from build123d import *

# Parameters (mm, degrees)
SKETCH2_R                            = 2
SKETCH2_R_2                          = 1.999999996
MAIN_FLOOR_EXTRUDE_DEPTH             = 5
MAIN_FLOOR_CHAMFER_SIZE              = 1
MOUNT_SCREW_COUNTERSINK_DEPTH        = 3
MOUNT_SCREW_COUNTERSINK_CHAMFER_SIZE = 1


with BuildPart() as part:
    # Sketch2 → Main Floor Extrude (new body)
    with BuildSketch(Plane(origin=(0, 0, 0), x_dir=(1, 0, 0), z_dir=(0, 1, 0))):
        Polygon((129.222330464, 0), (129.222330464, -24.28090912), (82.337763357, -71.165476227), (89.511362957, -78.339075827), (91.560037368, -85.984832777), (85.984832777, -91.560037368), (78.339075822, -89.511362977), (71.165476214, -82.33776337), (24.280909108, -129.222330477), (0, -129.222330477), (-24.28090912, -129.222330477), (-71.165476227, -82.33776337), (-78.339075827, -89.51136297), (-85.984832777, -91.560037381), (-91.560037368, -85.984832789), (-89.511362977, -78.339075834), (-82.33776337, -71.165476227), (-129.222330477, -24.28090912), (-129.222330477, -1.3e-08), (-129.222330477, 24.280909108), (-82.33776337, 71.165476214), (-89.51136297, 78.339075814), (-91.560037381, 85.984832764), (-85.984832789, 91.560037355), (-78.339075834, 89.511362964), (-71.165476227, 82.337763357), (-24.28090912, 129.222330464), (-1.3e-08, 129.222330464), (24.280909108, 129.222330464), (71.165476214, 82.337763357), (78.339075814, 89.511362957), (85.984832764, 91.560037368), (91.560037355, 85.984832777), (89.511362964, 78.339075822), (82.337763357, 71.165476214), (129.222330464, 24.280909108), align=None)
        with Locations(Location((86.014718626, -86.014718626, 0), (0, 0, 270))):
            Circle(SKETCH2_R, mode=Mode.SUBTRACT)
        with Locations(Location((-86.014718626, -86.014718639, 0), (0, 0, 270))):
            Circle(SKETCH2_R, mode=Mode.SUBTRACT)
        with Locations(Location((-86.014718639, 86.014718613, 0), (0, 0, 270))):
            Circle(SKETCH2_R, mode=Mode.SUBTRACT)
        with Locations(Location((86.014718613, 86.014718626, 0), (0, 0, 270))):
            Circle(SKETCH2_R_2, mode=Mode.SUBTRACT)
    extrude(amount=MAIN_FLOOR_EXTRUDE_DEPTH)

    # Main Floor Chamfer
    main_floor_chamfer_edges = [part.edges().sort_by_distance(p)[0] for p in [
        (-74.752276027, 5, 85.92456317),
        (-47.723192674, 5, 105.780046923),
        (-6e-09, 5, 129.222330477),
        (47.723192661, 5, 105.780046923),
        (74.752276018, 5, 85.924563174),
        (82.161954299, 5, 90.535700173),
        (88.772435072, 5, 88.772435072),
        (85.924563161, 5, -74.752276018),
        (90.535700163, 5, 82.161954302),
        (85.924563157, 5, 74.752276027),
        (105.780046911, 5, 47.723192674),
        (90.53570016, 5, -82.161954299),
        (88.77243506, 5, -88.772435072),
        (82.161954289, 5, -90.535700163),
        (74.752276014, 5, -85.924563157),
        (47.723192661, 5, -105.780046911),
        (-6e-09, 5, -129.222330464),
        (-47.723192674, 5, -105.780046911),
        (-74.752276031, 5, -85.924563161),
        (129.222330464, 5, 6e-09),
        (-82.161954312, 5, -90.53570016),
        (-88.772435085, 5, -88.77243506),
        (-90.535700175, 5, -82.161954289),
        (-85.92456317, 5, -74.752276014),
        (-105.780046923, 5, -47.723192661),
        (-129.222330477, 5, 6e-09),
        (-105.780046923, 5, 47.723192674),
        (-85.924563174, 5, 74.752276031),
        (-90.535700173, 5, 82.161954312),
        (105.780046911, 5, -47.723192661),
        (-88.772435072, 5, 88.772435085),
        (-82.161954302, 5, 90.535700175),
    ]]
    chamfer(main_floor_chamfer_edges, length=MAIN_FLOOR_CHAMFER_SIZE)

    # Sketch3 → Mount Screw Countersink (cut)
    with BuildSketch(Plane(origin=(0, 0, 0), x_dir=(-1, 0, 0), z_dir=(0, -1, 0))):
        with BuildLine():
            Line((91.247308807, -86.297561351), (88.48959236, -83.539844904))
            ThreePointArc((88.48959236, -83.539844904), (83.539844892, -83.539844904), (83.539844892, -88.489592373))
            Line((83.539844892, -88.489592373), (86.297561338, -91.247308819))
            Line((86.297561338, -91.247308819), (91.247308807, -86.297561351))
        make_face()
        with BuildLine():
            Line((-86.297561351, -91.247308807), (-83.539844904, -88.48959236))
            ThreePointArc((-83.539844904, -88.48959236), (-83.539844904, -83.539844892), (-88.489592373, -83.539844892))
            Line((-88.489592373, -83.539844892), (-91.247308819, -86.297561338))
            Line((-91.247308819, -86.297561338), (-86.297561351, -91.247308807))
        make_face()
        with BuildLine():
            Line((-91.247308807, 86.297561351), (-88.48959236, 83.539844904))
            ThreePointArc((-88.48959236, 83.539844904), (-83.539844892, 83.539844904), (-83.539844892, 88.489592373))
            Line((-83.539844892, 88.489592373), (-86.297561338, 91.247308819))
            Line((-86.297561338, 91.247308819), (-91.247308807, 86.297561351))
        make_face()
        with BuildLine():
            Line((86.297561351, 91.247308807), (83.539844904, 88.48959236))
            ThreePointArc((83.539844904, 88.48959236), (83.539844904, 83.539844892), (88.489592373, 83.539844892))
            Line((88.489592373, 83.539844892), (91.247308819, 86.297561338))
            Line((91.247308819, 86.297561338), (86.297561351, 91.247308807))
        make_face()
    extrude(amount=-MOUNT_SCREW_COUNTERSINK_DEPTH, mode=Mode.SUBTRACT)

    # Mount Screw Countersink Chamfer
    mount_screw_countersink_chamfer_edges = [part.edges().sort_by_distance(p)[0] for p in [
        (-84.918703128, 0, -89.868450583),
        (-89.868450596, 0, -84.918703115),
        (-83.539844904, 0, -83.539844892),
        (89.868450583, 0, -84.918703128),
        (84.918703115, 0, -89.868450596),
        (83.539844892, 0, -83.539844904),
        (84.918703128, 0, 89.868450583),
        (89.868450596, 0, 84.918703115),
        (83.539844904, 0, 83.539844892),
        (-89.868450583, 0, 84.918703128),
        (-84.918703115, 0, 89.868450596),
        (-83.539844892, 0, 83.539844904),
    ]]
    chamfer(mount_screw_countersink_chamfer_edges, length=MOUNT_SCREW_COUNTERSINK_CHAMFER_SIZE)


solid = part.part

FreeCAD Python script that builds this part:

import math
import FreeCAD as App
import Part
import Sketcher

V = App.Vector
Q = App.Units.Quantity


def edges_at(feature, points):
    """Names of the edges that pass closest to the given points."""
    edges = feature.Shape.Edges
    near = lambda p: min(range(len(edges)), key=lambda i: edges[i].distToShape(Part.Vertex(*p))[0])
    return sorted({f"Edge{near(p) + 1}" for p in points})

doc = App.newDocument("Part")
body = doc.addObject("PartDesign::Body", "Body")

sketch1 = doc.addObject("Sketcher::SketchObject", "Sketch")
body.addObject(sketch1)
sketch1.AttachmentSupport = (doc.XZ_Plane, [""])
sketch1.MapMode = "FlatFace"
sketch1.addGeometry([
    Part.LineSegment(V(129.2, 24.3, 0), V(129.2, -24.3, 0)),
    Part.LineSegment(V(129.2, -24.3, 0), V(82.3, -71.2, 0)),
    Part.LineSegment(V(82.3, -71.2, 0), V(89.5, -78.3, 0)),
    Part.LineSegment(V(89.5, -78.3, 0), V(91.6, -86, 0)),
    Part.LineSegment(V(91.6, -86, 0), V(86, -91.6, 0)),
    Part.LineSegment(V(86, -91.6, 0), V(78.3, -89.5, 0)),
    Part.LineSegment(V(78.3, -89.5, 0), V(71.2, -82.3, 0)),
    Part.LineSegment(V(71.2, -82.3, 0), V(24.3, -129.2, 0)),
    Part.LineSegment(V(24.3, -129.2, 0), V(-24.3, -129.2, 0)),
    Part.LineSegment(V(-24.3, -129.2, 0), V(-71.2, -82.3, 0)),
    Part.LineSegment(V(-71.2, -82.3, 0), V(-78.3, -89.5, 0)),
    Part.LineSegment(V(-78.3, -89.5, 0), V(-86, -91.6, 0)),
    Part.LineSegment(V(-86, -91.6, 0), V(-91.6, -86, 0)),
    Part.LineSegment(V(-91.6, -86, 0), V(-89.5, -78.3, 0)),
    Part.LineSegment(V(-89.5, -78.3, 0), V(-82.3, -71.2, 0)),
    Part.LineSegment(V(-82.3, -71.2, 0), V(-129.2, -24.3, 0)),
    Part.LineSegment(V(-129.2, -24.3, 0), V(-129.2, 24.3, 0)),
    Part.LineSegment(V(-129.2, 24.3, 0), V(-82.3, 71.2, 0)),
    Part.LineSegment(V(-82.3, 71.2, 0), V(-89.5, 78.3, 0)),
    Part.LineSegment(V(-89.5, 78.3, 0), V(-91.6, 86, 0)),
    Part.LineSegment(V(-91.6, 86, 0), V(-86, 91.6, 0)),
    Part.LineSegment(V(-86, 91.6, 0), V(-78.3, 89.5, 0)),
    Part.LineSegment(V(-78.3, 89.5, 0), V(-71.2, 82.3, 0)),
    Part.LineSegment(V(-71.2, 82.3, 0), V(-24.3, 129.2, 0)),
    Part.LineSegment(V(-24.3, 129.2, 0), V(24.3, 129.2, 0)),
    Part.LineSegment(V(24.3, 129.2, 0), V(71.2, 82.3, 0)),
    Part.LineSegment(V(71.2, 82.3, 0), V(78.3, 89.5, 0)),
    Part.LineSegment(V(78.3, 89.5, 0), V(86, 91.6, 0)),
    Part.LineSegment(V(86, 91.6, 0), V(91.6, 86, 0)),
    Part.LineSegment(V(91.6, 86, 0), V(89.5, 78.3, 0)),
    Part.LineSegment(V(89.5, 78.3, 0), V(82.3, 71.2, 0)),
    Part.LineSegment(V(82.3, 71.2, 0), V(129.2, 24.3, 0)),
    Part.Circle(V(86, 86, 0), V(0, 0, 1), 2),
    Part.Circle(V(-86, 86, 0), V(0, 0, 1), 2),
    Part.Circle(V(86, -86, 0), V(0, 0, 1), 2),
    Part.Circle(V(-86, -86, 0), V(0, 0, 1), 2),
], False)
sketch1.addConstraint([
    Sketcher.Constraint("Coincident", 0, 2, 1, 1),
    Sketcher.Constraint("Coincident", 1, 2, 2, 1),
    Sketcher.Constraint("Coincident", 2, 2, 3, 1),
    Sketcher.Constraint("Coincident", 3, 2, 4, 1),
    Sketcher.Constraint("Coincident", 4, 2, 5, 1),
    Sketcher.Constraint("Coincident", 5, 2, 6, 1),
    Sketcher.Constraint("Coincident", 6, 2, 7, 1),
    Sketcher.Constraint("Coincident", 7, 2, 8, 1),
    Sketcher.Constraint("Coincident", 8, 2, 9, 1),
    Sketcher.Constraint("Coincident", 9, 2, 10, 1),
    Sketcher.Constraint("Coincident", 10, 2, 11, 1),
    Sketcher.Constraint("Coincident", 11, 2, 12, 1),
    Sketcher.Constraint("Coincident", 12, 2, 13, 1),
    Sketcher.Constraint("Coincident", 13, 2, 14, 1),
    Sketcher.Constraint("Coincident", 14, 2, 15, 1),
    Sketcher.Constraint("Coincident", 15, 2, 16, 1),
    Sketcher.Constraint("Coincident", 16, 2, 17, 1),
    Sketcher.Constraint("Coincident", 17, 2, 18, 1),
    Sketcher.Constraint("Coincident", 18, 2, 19, 1),
    Sketcher.Constraint("Coincident", 19, 2, 20, 1),
    Sketcher.Constraint("Coincident", 20, 2, 21, 1),
    Sketcher.Constraint("Coincident", 21, 2, 22, 1),
    Sketcher.Constraint("Coincident", 22, 2, 23, 1),
    Sketcher.Constraint("Coincident", 23, 2, 24, 1),
    Sketcher.Constraint("Coincident", 24, 2, 25, 1),
    Sketcher.Constraint("Coincident", 25, 2, 26, 1),
    Sketcher.Constraint("Coincident", 26, 2, 27, 1),
    Sketcher.Constraint("Coincident", 27, 2, 28, 1),
    Sketcher.Constraint("Coincident", 28, 2, 29, 1),
    Sketcher.Constraint("Coincident", 29, 2, 30, 1),
    Sketcher.Constraint("Coincident", 30, 2, 31, 1),
    Sketcher.Constraint("Coincident", 31, 2, 0, 1),
    Sketcher.Constraint("Vertical", 0),
    Sketcher.Constraint("Horizontal", 8),
    Sketcher.Constraint("Vertical", 16),
    Sketcher.Constraint("Horizontal", 24),
    Sketcher.Constraint("Equal", 32, 33),
    Sketcher.Constraint("Equal", 33, 34),
    Sketcher.Constraint("Equal", 34, 35),
    Sketcher.Constraint("Symmetric", 33, 3, 34, 3, -1, 1),
    Sketcher.Constraint("Symmetric", 32, 3, 35, 3, -1, 1),
    Sketcher.Constraint("Symmetric", 0, 2, 16, 2, -1, 1),
    Sketcher.Constraint("Symmetric", 1, 2, 17, 2, -1, 1),
    Sketcher.Constraint("Symmetric", 2, 2, 18, 2, -1, 1),
    Sketcher.Constraint("Symmetric", 3, 2, 19, 2, -1, 1),
    Sketcher.Constraint("Symmetric", 4, 2, 20, 2, -1, 1),
    Sketcher.Constraint("Symmetric", 5, 2, 21, 2, -1, 1),
    Sketcher.Constraint("Symmetric", 6, 2, 22, 2, -1, 1),
    Sketcher.Constraint("Symmetric", 7, 2, 23, 2, -1, 1),
    Sketcher.Constraint("Symmetric", 9, 2, 25, 2, -1, 1),
    Sketcher.Constraint("Symmetric", 10, 2, 26, 2, -1, 1),
    Sketcher.Constraint("Symmetric", 11, 2, 27, 2, -1, 1),
    Sketcher.Constraint("Symmetric", 12, 2, 28, 2, -1, 1),
    Sketcher.Constraint("Symmetric", 13, 2, 29, 2, -1, 1),
    Sketcher.Constraint("Symmetric", 14, 2, 30, 2, -1, 1),
    Sketcher.Constraint("Symmetric", 32, 3, 33, 3, -2),
    Sketcher.Constraint("Symmetric", 6, 2, 9, 2, -2),
    Sketcher.Constraint("Symmetric", 5, 2, 10, 2, -2),
    Sketcher.Constraint("Symmetric", 4, 2, 11, 2, -2),
    Sketcher.Constraint("Symmetric", 3, 2, 12, 2, -2),
    Sketcher.Constraint("Symmetric", 2, 2, 13, 2, -2),
    Sketcher.Constraint("Symmetric", 1, 2, 14, 2, -2),
    Sketcher.Constraint("Perpendicular", 1, 2),
    Sketcher.Constraint("Perpendicular", 2, 4),
    Sketcher.Constraint("Perpendicular", 4, 6),
    Sketcher.Constraint("Perpendicular", 6, 7),
    Sketcher.Constraint("Perpendicular", 7, 9),
    Sketcher.Constraint("Perpendicular", 9, 10),
    Sketcher.Constraint("Perpendicular", 3, 11),
    Sketcher.Constraint("Perpendicular", 14, 15),
    Sketcher.Constraint("Perpendicular", 23, 25),
    Sketcher.Constraint("Perpendicular", 30, 31),
    Sketcher.Constraint("Equal", 24, 0),
    Sketcher.Constraint("Equal", 3, 5),
    Sketcher.Constraint("Equal", 2, 6),
    Sketcher.Constraint("Equal", 1, 7),
    Sketcher.Constraint("Diameter", 32, Q("4 mm")),
    Sketcher.Constraint("Angle", 3, Q("-75 deg")),
    Sketcher.Constraint("Distance", 2, Q("10.145002 mm")),
    Sketcher.Constraint("DistanceX", 8, 2, 8, 1, Q("48.561818 mm")),
    Sketcher.Constraint("Distance", 1, Q("66.304791 mm")),
    Sketcher.Constraint("Distance", 3, Q("7.91547 mm")),
    Sketcher.Constraint("Distance", 4, Q("7.88453 mm")),
    Sketcher.Constraint("DistanceX", -1, 1, 32, 3, Q("86.014719 mm")),
    Sketcher.Constraint("DistanceY", -1, 1, 32, 3, Q("86.014719 mm")),
])
pad1 = doc.addObject("PartDesign::Pad", "Pad")
body.addObject(pad1)
pad1.Profile = sketch1
pad1.Length = 5
pad1.Reversed = True
doc.recompute()

chamfer = doc.addObject("PartDesign::Chamfer", "Chamfer")
body.addObject(chamfer)
chamfer.Base = (pad1, edges_at(pad1, [
    (-74.752, 5, 85.925),
    (-47.723, 5, 105.78),
    (0, 5, 129.222),
    (47.723, 5, 105.78),
    (74.752, 5, 85.925),
    (82.162, 5, 90.536),
    (88.772, 5, 88.772),
    (85.925, 5, -74.752),
    (90.536, 5, 82.162),
    (85.925, 5, 74.752),
    (105.78, 5, 47.723),
    (90.536, 5, -82.162),
    (88.772, 5, -88.772),
    (82.162, 5, -90.536),
    (74.752, 5, -85.925),
    (47.723, 5, -105.78),
    (0, 5, -129.222),
    (-47.723, 5, -105.78),
    (-74.752, 5, -85.925),
    (129.222, 5, 0),
    (-82.162, 5, -90.536),
    (-88.772, 5, -88.772),
    (-90.536, 5, -82.162),
    (-85.925, 5, -74.752),
    (-105.78, 5, -47.723),
    (-129.222, 5, 0),
    (-105.78, 5, 47.723),
    (-85.925, 5, 74.752),
    (-90.536, 5, 82.162),
    (105.78, 5, -47.723),
    (-88.772, 5, 88.772),
    (-82.162, 5, 90.536),
]))
chamfer.Size = 1

sketch2 = doc.addObject("Sketcher::SketchObject", "Sketch001")
body.addObject(sketch2)
sketch2.AttachmentSupport = (doc.XZ_Plane, [""])
sketch2.MapMode = "FlatFace"
sketch2.addGeometry([
    Part.LineSegment(V(-91.2, 86.3, 0), V(-88.5, 83.5, 0)),
    Part.ArcOfCircle(Part.Circle(V(-86, 86, 0), V(0, 0, 1), 3.5), math.radians(-135), math.radians(45)),
    Part.LineSegment(V(-83.5, 88.5, 0), V(-86.3, 91.2, 0)),
    Part.LineSegment(V(-86.3, 91.2, 0), V(-91.2, 86.3, 0)),
    Part.LineSegment(V(86.3, 91.2, 0), V(83.5, 88.5, 0)),
    Part.ArcOfCircle(Part.Circle(V(86, 86, 0), V(0, 0, 1), 3.5), math.radians(135), math.radians(315)),
    Part.LineSegment(V(88.5, 83.5, 0), V(91.2, 86.3, 0)),
    Part.LineSegment(V(91.2, 86.3, 0), V(86.3, 91.2, 0)),
    Part.LineSegment(V(91.2, -86.3, 0), V(88.5, -83.5, 0)),
    Part.ArcOfCircle(Part.Circle(V(86, -86, 0), V(0, 0, 1), 3.5), math.radians(45), math.radians(225)),
    Part.LineSegment(V(83.5, -88.5, 0), V(86.3, -91.2, 0)),
    Part.LineSegment(V(86.3, -91.2, 0), V(91.2, -86.3, 0)),
    Part.LineSegment(V(-86.3, -91.2, 0), V(-83.5, -88.5, 0)),
    Part.ArcOfCircle(Part.Circle(V(-86, -86, 0), V(0, 0, 1), 3.5), math.radians(-45), math.radians(135)),
    Part.LineSegment(V(-88.5, -83.5, 0), V(-91.2, -86.3, 0)),
    Part.LineSegment(V(-91.2, -86.3, 0), V(-86.3, -91.2, 0)),
], False)
sketch2.addConstraint([
    Sketcher.Constraint("Tangent", 0, 2, 1, 1),
    Sketcher.Constraint("Tangent", 1, 2, 2, 1),
    Sketcher.Constraint("Coincident", 2, 2, 3, 1),
    Sketcher.Constraint("Coincident", 3, 2, 0, 1),
    Sketcher.Constraint("Tangent", 4, 2, 5, 1),
    Sketcher.Constraint("Tangent", 5, 2, 6, 1),
    Sketcher.Constraint("Coincident", 6, 2, 7, 1),
    Sketcher.Constraint("Coincident", 7, 2, 4, 1),
    Sketcher.Constraint("Tangent", 8, 2, 9, 1),
    Sketcher.Constraint("Tangent", 9, 2, 10, 1),
    Sketcher.Constraint("Coincident", 10, 2, 11, 1),
    Sketcher.Constraint("Coincident", 11, 2, 8, 1),
    Sketcher.Constraint("Tangent", 12, 2, 13, 1),
    Sketcher.Constraint("Tangent", 13, 2, 14, 1),
    Sketcher.Constraint("Coincident", 14, 2, 15, 1),
    Sketcher.Constraint("Coincident", 15, 2, 12, 1),
    Sketcher.Constraint("Equal", 1, 5),
    Sketcher.Constraint("Equal", 5, 9),
    Sketcher.Constraint("Equal", 9, 13),
    Sketcher.Constraint("Symmetric", 1, 3, 9, 3, -1, 1),
    Sketcher.Constraint("Symmetric", 5, 3, 13, 3, -1, 1),
    Sketcher.Constraint("Symmetric", 2, 2, 10, 2, -1, 1),
    Sketcher.Constraint("Symmetric", 3, 2, 11, 2, -1, 1),
    Sketcher.Constraint("Symmetric", 6, 2, 14, 2, -1, 1),
    Sketcher.Constraint("Symmetric", 7, 2, 15, 2, -1, 1),
    Sketcher.Constraint("Symmetric", 1, 3, 5, 3, -2),
    Sketcher.Constraint("Symmetric", 3, 2, 6, 2, -2),
    Sketcher.Constraint("Symmetric", 2, 2, 7, 2, -2),
    Sketcher.Constraint("Parallel", 0, 2),
    Sketcher.Constraint("Perpendicular", 2, 3),
    Sketcher.Constraint("Parallel", 3, 4),
    Sketcher.Constraint("Radius", 1, Q("3.5 mm")),
    Sketcher.Constraint("Distance", 0, Q("3.9 mm")),
    Sketcher.Constraint("DistanceX", 1, 3, -1, 1, Q("86.014719 mm")),
    Sketcher.Constraint("DistanceY", -1, 1, 1, 3, Q("86.014719 mm")),
])
pocket1 = doc.addObject("PartDesign::Pocket", "Pocket")
body.addObject(pocket1)
pocket1.Profile = sketch2
pocket1.Length = 3
doc.recompute()

chamfer2 = doc.addObject("PartDesign::Chamfer", "Chamfer001")
body.addObject(chamfer2)
chamfer2.Base = (pocket1, edges_at(pocket1, [
    (-84.919, 0, -89.868),
    (-89.868, 0, -84.919),
    (-83.54, 0, -83.54),
    (89.868, 0, -84.919),
    (84.919, 0, -89.868),
    (83.54, 0, -83.54),
    (84.919, 0, 89.868),
    (89.868, 0, 84.919),
    (83.54, 0, 83.54),
    (-89.868, 0, 84.919),
    (-84.919, 0, 89.868),
    (-83.54, 0, 83.54),
]))
chamfer2.Size = 1

doc.recompute()
